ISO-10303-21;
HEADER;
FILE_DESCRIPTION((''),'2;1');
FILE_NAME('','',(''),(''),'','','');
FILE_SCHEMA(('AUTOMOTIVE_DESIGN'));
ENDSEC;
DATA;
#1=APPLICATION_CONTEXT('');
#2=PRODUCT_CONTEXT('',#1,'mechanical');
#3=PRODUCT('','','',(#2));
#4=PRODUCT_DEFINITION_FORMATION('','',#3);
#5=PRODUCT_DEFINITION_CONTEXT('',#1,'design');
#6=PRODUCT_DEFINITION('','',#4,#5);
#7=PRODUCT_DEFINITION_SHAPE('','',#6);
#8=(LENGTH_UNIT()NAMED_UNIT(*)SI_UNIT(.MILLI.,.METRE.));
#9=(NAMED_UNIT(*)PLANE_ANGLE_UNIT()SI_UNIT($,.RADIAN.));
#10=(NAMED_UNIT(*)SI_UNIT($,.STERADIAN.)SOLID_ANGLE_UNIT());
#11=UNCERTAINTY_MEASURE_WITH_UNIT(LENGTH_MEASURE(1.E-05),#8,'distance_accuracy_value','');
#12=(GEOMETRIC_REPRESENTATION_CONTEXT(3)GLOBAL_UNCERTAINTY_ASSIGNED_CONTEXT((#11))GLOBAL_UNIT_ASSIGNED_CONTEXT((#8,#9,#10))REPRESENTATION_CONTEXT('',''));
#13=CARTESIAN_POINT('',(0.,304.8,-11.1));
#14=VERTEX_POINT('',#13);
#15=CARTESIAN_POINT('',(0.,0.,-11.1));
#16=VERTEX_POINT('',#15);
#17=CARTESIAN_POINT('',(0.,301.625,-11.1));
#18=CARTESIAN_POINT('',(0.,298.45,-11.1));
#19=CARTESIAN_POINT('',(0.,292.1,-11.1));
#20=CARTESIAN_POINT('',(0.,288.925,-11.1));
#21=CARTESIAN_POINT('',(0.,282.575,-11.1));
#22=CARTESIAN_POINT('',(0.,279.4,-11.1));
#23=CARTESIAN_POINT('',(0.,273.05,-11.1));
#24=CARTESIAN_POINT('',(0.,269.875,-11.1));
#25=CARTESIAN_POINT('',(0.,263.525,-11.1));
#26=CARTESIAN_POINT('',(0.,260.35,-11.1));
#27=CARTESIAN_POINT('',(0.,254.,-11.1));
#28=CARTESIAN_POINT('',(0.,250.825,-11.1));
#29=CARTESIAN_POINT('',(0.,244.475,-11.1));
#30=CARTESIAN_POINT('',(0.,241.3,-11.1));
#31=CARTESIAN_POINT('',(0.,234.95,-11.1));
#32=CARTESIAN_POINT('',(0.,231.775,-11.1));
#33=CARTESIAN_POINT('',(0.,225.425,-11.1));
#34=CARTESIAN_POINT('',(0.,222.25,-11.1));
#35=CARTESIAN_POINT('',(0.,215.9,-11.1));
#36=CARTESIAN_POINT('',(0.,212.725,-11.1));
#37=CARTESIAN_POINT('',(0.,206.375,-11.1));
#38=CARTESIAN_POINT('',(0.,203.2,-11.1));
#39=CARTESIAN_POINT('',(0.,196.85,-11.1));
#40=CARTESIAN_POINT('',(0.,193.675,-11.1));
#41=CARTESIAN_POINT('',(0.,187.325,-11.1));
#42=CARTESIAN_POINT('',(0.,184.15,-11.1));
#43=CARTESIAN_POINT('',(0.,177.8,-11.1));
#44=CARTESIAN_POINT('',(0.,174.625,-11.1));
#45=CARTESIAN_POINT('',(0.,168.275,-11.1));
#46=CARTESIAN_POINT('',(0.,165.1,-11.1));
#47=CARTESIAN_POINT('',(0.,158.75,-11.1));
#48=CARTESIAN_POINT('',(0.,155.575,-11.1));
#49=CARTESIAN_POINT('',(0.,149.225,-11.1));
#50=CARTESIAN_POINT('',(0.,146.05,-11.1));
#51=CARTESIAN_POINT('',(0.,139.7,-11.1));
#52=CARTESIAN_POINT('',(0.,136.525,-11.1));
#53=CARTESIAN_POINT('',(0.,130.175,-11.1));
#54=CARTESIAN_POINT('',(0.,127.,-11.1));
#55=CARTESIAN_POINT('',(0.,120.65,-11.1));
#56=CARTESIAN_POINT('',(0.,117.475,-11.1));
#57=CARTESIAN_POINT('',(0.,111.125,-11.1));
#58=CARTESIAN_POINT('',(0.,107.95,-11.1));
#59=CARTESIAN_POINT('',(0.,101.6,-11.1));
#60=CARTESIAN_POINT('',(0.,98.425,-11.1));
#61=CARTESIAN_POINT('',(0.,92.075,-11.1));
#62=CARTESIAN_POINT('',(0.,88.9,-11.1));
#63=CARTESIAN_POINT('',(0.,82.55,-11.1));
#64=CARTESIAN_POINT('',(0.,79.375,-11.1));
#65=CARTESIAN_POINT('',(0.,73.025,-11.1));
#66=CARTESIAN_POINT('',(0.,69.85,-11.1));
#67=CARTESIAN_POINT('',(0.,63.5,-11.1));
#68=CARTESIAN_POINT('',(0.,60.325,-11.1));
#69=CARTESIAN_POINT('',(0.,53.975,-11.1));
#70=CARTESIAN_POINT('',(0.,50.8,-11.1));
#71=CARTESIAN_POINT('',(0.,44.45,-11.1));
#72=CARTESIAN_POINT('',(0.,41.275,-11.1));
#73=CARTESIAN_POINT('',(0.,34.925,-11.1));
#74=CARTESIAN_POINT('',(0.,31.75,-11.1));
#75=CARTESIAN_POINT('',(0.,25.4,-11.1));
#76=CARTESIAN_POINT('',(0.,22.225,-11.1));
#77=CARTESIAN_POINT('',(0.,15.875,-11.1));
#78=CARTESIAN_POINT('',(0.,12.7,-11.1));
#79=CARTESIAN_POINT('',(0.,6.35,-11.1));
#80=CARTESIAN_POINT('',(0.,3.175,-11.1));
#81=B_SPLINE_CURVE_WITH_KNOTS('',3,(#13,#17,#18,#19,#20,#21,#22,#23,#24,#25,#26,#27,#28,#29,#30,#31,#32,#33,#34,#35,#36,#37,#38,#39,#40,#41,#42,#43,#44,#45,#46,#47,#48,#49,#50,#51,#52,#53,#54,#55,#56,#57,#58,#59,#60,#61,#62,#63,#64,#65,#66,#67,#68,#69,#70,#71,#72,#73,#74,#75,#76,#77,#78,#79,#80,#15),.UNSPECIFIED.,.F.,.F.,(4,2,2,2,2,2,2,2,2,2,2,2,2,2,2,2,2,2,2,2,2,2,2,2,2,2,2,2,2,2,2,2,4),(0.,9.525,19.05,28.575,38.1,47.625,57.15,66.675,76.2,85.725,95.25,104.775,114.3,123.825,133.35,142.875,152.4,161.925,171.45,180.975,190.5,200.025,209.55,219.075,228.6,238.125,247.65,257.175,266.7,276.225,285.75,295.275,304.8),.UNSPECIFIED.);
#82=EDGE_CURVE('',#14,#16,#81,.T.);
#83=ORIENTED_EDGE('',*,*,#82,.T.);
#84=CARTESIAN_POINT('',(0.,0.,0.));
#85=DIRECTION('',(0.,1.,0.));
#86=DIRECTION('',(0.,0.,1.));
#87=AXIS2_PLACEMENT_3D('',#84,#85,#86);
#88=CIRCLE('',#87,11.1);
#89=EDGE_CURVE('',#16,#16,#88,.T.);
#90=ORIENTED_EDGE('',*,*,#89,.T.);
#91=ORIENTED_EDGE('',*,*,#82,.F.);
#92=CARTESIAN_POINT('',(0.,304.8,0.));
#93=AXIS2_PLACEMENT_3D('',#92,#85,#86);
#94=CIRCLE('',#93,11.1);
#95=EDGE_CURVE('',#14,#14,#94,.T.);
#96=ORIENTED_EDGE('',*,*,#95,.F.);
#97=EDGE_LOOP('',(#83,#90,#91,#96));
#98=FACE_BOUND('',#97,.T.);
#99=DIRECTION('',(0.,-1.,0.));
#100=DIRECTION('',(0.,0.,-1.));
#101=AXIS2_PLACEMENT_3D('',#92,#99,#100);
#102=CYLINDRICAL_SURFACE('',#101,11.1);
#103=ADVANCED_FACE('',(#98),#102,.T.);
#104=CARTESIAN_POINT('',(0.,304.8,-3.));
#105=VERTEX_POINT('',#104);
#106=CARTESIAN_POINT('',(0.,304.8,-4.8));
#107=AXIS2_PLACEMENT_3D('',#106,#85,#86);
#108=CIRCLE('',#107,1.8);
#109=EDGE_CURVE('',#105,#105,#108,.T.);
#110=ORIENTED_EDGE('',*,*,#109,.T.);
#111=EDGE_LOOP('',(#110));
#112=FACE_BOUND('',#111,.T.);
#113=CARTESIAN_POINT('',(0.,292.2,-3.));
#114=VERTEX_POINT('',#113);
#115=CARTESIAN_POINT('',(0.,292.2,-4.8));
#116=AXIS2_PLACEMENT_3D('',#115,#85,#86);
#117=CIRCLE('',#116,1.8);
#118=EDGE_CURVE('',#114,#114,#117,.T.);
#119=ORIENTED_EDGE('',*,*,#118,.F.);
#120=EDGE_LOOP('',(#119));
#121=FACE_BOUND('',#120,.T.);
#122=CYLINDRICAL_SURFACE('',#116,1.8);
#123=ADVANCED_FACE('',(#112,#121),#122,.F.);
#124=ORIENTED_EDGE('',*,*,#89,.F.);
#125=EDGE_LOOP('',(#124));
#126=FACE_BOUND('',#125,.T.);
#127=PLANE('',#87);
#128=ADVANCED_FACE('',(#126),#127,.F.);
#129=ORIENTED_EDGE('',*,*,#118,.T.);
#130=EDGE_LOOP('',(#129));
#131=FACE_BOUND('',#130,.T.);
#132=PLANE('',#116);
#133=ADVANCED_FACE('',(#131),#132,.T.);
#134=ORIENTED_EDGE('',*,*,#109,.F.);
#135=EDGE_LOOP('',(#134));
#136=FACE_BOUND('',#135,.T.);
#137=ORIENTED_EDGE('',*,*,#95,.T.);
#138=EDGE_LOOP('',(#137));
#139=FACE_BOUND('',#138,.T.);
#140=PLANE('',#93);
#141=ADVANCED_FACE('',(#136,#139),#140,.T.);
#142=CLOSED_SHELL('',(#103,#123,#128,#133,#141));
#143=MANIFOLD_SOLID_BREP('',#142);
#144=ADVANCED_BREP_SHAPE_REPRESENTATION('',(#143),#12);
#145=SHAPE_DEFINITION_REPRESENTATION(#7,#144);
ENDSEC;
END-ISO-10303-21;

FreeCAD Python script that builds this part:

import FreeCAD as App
import Part
import Sketcher
Q = App.Units.Quantity

doc = App.newDocument("Part")
body = doc.addObject("PartDesign::Body", "Body")

sketch1 = doc.addObject("Sketcher::SketchObject", "Sketch")
body.addObject(sketch1)
sketch1.AttachmentSupport = (doc.XZ_Plane, [""])
sketch1.MapMode = "FlatFace"
sketch1.addGeometry(Part.Circle(App.Vector(0, 0, 0), App.Vector(0, 0, 1), 11.1), False)
sketch1.addConstraint(Sketcher.Constraint("Coincident", 0, 3, -1, 1))
sketch1.addConstraint(Sketcher.Constraint("Diameter", 0, Q("22.2 mm")))
pad1 = doc.addObject("PartDesign::Pad", "Pad")
body.addObject(pad1)
pad1.Profile = sketch1
pad1.Length = 304.8
pad1.Reversed = True

sketch2 = doc.addObject("Sketcher::SketchObject", "Sketch001")
body.addObject(sketch2)
sketch2.AttachmentSupport = (doc.XZ_Plane, [""])
sketch2.MapMode = "FlatFace"
sketch2.AttachmentOffset = App.Placement(App.Vector(0, 0, -304.8), App.Rotation())
sketch2.addGeometry(Part.Circle(App.Vector(0, -4.8, 0), App.Vector(0, 0, 1), 1.8), False)
sketch2.addConstraint(Sketcher.Constraint("PointOnObject", 0, 3, -2))
sketch2.addConstraint(Sketcher.Constraint("Diameter", 0, Q("3.6 mm")))
sketch2.addConstraint(Sketcher.Constraint("DistanceY", 0, 3, -1, 1, Q("4.8 mm")))
pocket1 = doc.addObject("PartDesign::Pocket", "Pocket")
body.addObject(pocket1)
pocket1.Profile = sketch2
pocket1.Length = 12.6
pocket1.Reversed = True

doc.recompute()
